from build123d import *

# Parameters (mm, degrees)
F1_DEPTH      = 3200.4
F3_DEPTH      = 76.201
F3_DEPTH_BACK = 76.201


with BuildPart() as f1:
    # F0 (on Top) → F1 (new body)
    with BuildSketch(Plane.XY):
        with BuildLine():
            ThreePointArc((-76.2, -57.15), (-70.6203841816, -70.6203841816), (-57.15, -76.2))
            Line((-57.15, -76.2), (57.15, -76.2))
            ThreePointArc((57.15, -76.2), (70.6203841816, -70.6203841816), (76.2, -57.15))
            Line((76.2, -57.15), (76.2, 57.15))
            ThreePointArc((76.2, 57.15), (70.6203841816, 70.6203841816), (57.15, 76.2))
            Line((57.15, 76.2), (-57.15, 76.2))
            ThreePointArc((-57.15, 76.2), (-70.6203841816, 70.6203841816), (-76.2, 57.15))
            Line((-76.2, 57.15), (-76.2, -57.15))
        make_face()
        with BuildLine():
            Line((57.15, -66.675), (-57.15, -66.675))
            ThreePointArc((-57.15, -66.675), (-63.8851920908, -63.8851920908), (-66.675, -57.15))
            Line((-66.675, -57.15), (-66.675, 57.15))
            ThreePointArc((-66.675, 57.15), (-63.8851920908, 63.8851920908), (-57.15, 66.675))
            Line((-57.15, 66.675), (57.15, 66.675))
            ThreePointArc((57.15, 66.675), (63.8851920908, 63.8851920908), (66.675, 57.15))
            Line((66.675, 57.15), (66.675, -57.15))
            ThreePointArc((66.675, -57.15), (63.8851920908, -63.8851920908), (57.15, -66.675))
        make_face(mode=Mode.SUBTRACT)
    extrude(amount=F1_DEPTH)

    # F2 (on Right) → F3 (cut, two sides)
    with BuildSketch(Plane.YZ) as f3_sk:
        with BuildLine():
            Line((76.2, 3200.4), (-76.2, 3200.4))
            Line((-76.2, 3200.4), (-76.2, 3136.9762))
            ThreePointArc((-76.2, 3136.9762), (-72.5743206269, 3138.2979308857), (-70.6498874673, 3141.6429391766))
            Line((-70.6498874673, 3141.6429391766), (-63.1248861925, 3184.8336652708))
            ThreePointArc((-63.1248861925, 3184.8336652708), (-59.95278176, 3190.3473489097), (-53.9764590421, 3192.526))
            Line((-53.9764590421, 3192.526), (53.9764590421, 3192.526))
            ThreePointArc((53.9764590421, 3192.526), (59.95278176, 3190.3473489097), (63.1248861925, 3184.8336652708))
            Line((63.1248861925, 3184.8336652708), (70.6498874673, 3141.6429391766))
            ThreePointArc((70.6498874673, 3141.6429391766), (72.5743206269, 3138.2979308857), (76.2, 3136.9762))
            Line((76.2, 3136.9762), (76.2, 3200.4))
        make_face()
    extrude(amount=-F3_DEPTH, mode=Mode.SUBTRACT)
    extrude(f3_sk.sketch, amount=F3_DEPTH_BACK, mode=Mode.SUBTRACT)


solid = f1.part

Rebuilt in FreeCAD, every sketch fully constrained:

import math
import FreeCAD as App
import Part
import Sketcher
from FreeCAD import Vector
Q = App.Units.Quantity

doc = App.newDocument("Part")
body = doc.addObject("PartDesign::Body", "Body")

sketch1 = doc.addObject("Sketcher::SketchObject", "Sketch")
body.addObject(sketch1)
sketch1.AttachmentSupport = (doc.XY_Plane, [""])
sketch1.MapMode = "FlatFace"
sketch1.addGeometry([
    Part.ArcOfCircle(Part.Circle(Vector(-57.15, -57.15, 0), Vector(0, 0, 1), 19.05), math.radians(180), math.radians(270)),
    Part.LineSegment(Vector(-57.15, -76.2, 0), Vector(57.15, -76.2, 0)),
    Part.ArcOfCircle(Part.Circle(Vector(57.15, -57.15, 0), Vector(0, 0, 1), 19.05), math.radians(-90), math.radians(0)),
    Part.LineSegment(Vector(76.2, -57.15, 0), Vector(76.2, 57.15, 0)),
    Part.ArcOfCircle(Part.Circle(Vector(57.15, 57.15, 0), Vector(0, 0, 1), 19.05), math.radians(0), math.radians(90)),
    Part.LineSegment(Vector(57.15, 76.2, 0), Vector(-57.15, 76.2, 0)),
    Part.ArcOfCircle(Part.Circle(Vector(-57.15, 57.15, 0), Vector(0, 0, 1), 19.05), math.radians(90), math.radians(180)),
    Part.LineSegment(Vector(-76.2, 57.15, 0), Vector(-76.2, -57.15, 0)),
    Part.ArcOfCircle(Part.Circle(Vector(57.15, -57.15, 0), Vector(0, 0, 1), 9.525), math.radians(-90), math.radians(0)),
    Part.LineSegment(Vector(57.15, -66.675, 0), Vector(-57.15, -66.675, 0)),
    Part.ArcOfCircle(Part.Circle(Vector(-57.15, -57.15, 0), Vector(0, 0, 1), 9.525), math.radians(180), math.radians(270)),
    Part.LineSegment(Vector(-66.675, -57.15, 0), Vector(-66.675, 57.15, 0)),
    Part.ArcOfCircle(Part.Circle(Vector(-57.15, 57.15, 0), Vector(0, 0, 1), 9.525), math.radians(90), math.radians(180)),
    Part.LineSegment(Vector(-57.15, 66.675, 0), Vector(57.15, 66.675, 0)),
    Part.ArcOfCircle(Part.Circle(Vector(57.15, 57.15, 0), Vector(0, 0, 1), 9.525), math.radians(0), math.radians(90)),
    Part.LineSegment(Vector(66.675, 57.15, 0), Vector(66.675, -57.15, 0)),
], False)
sketch1.addConstraint([
    Sketcher.Constraint("Tangent", 0, 2, 1, 1),
    Sketcher.Constraint("Tangent", 1, 2, 2, 1),
    Sketcher.Constraint("Tangent", 2, 2, 3, 1),
    Sketcher.Constraint("Tangent", 3, 2, 4, 1),
    Sketcher.Constraint("Tangent", 4, 2, 5, 1),
    Sketcher.Constraint("Tangent", 5, 2, 6, 1),
    Sketcher.Constraint("Tangent", 6, 2, 7, 1),
    Sketcher.Constraint("Tangent", 7, 2, 0, 1),
    Sketcher.Constraint("Tangent", 8, 1, 9, 1),
    Sketcher.Constraint("Tangent", 9, 2, 10, 2),
    Sketcher.Constraint("Tangent", 10, 1, 11, 1),
    Sketcher.Constraint("Tangent", 11, 2, 12, 2),
    Sketcher.Constraint("Tangent", 12, 1, 13, 1),
    Sketcher.Constraint("Tangent", 13, 2, 14, 2),
    Sketcher.Constraint("Tangent", 14, 1, 15, 1),
    Sketcher.Constraint("Tangent", 15, 2, 8, 2),
    Sketcher.Constraint("Horizontal", 1),
    Sketcher.Constraint("Vertical", 3),
    Sketcher.Constraint("Horizontal", 5),
    Sketcher.Constraint("Vertical", 7),
    Sketcher.Constraint("Horizontal", 9),
    Sketcher.Constraint("Vertical", 11),
    Sketcher.Constraint("Horizontal", 13),
    Sketcher.Constraint("Vertical", 15),
    Sketcher.Constraint("Coincident", 8, 3, 2, 3),
    Sketcher.Constraint("Coincident", 10, 3, 0, 3),
    Sketcher.Constraint("Coincident", 12, 3, 6, 3),
    Sketcher.Constraint("Equal", 0, 2),
    Sketcher.Constraint("Equal", 2, 4),
    Sketcher.Constraint("Equal", 4, 6),
    Sketcher.Constraint("Equal", 12, 14),
    Sketcher.Constraint("Symmetric", 0, 3, 4, 3, -1, 1),
    Sketcher.Constraint("Equal", 13, 3),
    Sketcher.Constraint("Radius", 0, Q("0.75 in")),
    Sketcher.Constraint("DistanceX", 1, 1, 1, 2, Q("4.5 in")),
    Sketcher.Constraint("Radius", 8, Q("0.375 in")),
])
pad1 = doc.addObject("PartDesign::Pad", "Pad")
body.addObject(pad1)
pad1.Profile = sketch1
pad1.Length = Q("126 in")

sketch2 = doc.addObject("Sketcher::SketchObject", "Sketch001")
body.addObject(sketch2)
sketch2.AttachmentSupport = (doc.YZ_Plane, [""])
sketch2.MapMode = "FlatFace"
sketch2.addGeometry([
    Part.LineSegment(Vector(76.2, 3200.4, 0), Vector(-76.2, 3200.4, 0)),
    Part.LineSegment(Vector(-76.2, 3200.4, 0), Vector(-76.2, 3136.9762, 0)),
    Part.ArcOfCircle(Part.Circle(Vector(-76.2, 3142.60992, 0), Vector(0, 0, 1), 5.63372), math.radians(-90), math.radians(-9.88328)),
    Part.LineSegment(Vector(-70.649887, 3141.642939, 0), Vector(-63.124886, 3184.833665, 0)),
    Part.ArcOfCircle(Part.Circle(Vector(-53.976459, 3183.23976, 0), Vector(0, 0, 1), 9.28624), math.radians(90), math.radians(170.11672)),
    Part.LineSegment(Vector(-53.976459, 3192.526, 0), Vector(53.976459, 3192.526, 0)),
    Part.ArcOfCircle(Part.Circle(Vector(53.976459, 3183.23976, 0), Vector(0, 0, 1), 9.28624), math.radians(9.88328), math.radians(90)),
    Part.LineSegment(Vector(63.124886, 3184.833665, 0), Vector(70.649887, 3141.642939, 0)),
    Part.ArcOfCircle(Part.Circle(Vector(76.2, 3142.60992, 0), Vector(0, 0, 1), 5.63372), math.radians(-170.11672), math.radians(-90)),
    Part.LineSegment(Vector(76.2, 3136.9762, 0), Vector(76.2, 3200.4, 0)),
], False)
sketch2.addConstraint([
    Sketcher.Constraint("Coincident", 0, 2, 1, 1),
    Sketcher.Constraint("Coincident", 1, 2, 2, 1),
    Sketcher.Constraint("Tangent", 2, 2, 3, 1),
    Sketcher.Constraint("Tangent", 3, 2, 4, 2),
    Sketcher.Constraint("Tangent", 4, 1, 5, 1),
    Sketcher.Constraint("Tangent", 5, 2, 6, 2),
    Sketcher.Constraint("Tangent", 6, 1, 7, 1),
    Sketcher.Constraint("Tangent", 7, 2, 8, 1),
    Sketcher.Constraint("Coincident", 8, 2, 9, 1),
    Sketcher.Constraint("Coincident", 9, 2, 0, 1),
    Sketcher.Constraint("Horizontal", 0),
    Sketcher.Constraint("Vertical", 1),
    Sketcher.Constraint("Horizontal", 5),
    Sketcher.Constraint("Vertical", 9),
    Sketcher.Constraint("Equal", 4, 6),
    Sketcher.Constraint("Equal", 2, 8),
    Sketcher.Constraint("Symmetric", 2, 3, 8, 3, -2),
    Sketcher.Constraint("Horizontal", 3, 2, 6, 1),
    Sketcher.Constraint("Vertical", 2, 3, 0, 2),
    Sketcher.Constraint("DistanceX", 0, 2, 0, 1, Q("6 in")),
    Sketcher.Constraint("DistanceX", 2, 3, -1, 1, Q("3 in")),
    Sketcher.Constraint("DistanceY", -1, 1, 0, 2, Q("126 in")),
    Sketcher.Constraint("Radius", 2, Q("0.2218 in")),
    Sketcher.Constraint("Radius", 4, Q("0.3656 in")),
    Sketcher.Constraint("DistanceY", 1, 2, 1, 1, Q("2.497 in")),
    Sketcher.Constraint("DistanceY", -1, 1, 4, 1, Q("125.69 in")),
    Sketcher.Constraint("DistanceX", 5, 1, 5, 2, Q("107.952918 mm")),
])
pocket1 = doc.addObject("PartDesign::Pocket", "Pocket")
body.addObject(pocket1)
pocket1.Profile = sketch2
pocket1.Type = "ThroughAll"
pocket1.Midplane = True

doc.recompute()
